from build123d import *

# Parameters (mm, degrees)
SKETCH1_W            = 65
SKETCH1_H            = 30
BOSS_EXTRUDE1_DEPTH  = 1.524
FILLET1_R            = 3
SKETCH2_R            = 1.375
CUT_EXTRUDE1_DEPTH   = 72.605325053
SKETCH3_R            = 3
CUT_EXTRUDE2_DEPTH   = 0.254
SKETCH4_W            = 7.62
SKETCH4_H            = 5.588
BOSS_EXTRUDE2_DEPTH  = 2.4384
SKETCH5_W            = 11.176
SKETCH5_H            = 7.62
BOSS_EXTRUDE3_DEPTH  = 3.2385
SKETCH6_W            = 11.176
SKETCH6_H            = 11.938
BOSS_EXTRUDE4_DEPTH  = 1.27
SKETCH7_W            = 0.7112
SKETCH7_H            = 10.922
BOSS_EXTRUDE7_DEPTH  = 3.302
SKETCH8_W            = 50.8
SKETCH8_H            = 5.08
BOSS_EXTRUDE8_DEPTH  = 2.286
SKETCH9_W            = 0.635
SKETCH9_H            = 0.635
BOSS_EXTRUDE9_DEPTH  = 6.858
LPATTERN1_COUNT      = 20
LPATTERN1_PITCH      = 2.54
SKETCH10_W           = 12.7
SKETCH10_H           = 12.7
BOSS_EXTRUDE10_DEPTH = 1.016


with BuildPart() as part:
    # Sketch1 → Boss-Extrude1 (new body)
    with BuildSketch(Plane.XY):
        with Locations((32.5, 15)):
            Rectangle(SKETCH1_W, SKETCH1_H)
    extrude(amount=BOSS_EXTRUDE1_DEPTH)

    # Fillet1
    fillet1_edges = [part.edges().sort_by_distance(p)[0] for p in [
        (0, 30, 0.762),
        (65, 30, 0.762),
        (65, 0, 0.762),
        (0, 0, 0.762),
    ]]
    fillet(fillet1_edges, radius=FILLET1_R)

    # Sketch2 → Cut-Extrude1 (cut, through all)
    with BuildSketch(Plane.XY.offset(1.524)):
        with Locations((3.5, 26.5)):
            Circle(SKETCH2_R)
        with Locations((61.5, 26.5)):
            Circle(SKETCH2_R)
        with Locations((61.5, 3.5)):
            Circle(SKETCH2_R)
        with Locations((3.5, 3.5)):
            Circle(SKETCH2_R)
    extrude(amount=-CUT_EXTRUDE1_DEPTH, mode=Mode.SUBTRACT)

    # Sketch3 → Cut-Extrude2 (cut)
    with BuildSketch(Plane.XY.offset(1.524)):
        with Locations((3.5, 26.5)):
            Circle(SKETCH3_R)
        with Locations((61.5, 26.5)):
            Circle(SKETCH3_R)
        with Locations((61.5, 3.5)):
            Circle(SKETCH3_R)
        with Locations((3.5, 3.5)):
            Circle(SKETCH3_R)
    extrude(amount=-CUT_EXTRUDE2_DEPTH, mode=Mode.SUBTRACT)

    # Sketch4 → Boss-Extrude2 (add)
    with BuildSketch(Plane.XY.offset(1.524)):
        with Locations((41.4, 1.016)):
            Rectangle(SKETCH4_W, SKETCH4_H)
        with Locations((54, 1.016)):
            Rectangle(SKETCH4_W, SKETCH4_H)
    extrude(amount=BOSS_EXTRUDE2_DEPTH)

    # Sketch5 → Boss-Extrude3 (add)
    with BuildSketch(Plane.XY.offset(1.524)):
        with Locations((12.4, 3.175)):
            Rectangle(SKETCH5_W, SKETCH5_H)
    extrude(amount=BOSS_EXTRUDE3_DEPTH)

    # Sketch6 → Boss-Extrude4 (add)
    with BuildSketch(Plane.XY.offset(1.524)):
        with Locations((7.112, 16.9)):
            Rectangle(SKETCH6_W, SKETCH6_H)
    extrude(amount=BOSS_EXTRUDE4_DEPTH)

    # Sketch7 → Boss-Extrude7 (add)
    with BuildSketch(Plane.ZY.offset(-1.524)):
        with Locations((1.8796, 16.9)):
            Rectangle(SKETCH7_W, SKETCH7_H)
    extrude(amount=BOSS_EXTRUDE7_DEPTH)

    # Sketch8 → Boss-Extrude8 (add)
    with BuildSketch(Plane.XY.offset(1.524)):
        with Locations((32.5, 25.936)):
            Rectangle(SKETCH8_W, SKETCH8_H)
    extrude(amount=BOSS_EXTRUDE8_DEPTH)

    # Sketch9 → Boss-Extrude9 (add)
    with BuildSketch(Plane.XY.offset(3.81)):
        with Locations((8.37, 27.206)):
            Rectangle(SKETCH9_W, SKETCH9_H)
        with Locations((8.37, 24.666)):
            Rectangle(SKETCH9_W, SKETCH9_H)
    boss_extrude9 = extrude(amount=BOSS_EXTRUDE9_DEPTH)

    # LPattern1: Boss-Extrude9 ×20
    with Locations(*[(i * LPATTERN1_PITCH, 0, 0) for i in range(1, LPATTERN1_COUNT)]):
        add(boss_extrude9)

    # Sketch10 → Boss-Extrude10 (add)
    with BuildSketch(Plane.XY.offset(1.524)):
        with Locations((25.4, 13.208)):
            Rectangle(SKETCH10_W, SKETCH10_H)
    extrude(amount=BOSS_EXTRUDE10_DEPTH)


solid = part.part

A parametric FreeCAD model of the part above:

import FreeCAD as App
import Part
import Sketcher

V = App.Vector
Q = App.Units.Quantity


def edges_at(feature, points):
    """Names of the edges that pass closest to the given points."""
    edges = feature.Shape.Edges
    near = lambda p: min(range(len(edges)), key=lambda i: edges[i].distToShape(Part.Vertex(*p))[0])
    return sorted({f"Edge{near(p) + 1}" for p in points})


def add_polygon(sketch, points):
    """Adds a closed chain of lines whose ends are joined by coincident constraints."""
    first, n = sketch.GeometryCount, len(points)
    for a, b in zip(points, points[1:] + points[:1]):
        sketch.addGeometry(Part.LineSegment(App.Vector(*a, 0), App.Vector(*b, 0)), False)
    for i in range(n):
        sketch.addConstraint(Sketcher.Constraint("Coincident", first + i, 2, first + (i + 1) % n, 1))

doc = App.newDocument("Part")
params = doc.addObject("Spreadsheet::Sheet", "Params")
for row, (alias, value) in enumerate([
    ("pad1_length", "0.06 in"),
    ("fillet_radius", "3 mm"),
    ("pocket2_length", "0.01 in"),
    ("sketch4_width", "0.3 in"),
    ("sketch4_height", "0.22 in"),
    ("pad2_length", "0.096 in"),
    ("sketch5_height", "0.3 in"),
    ("sketch5_width", "0.44 in"),
    ("pad3_length", "0.1275 in"),
    ("sketch6_width", "0.44 in"),
    ("sketch6_height", "0.47 in"),
    ("pad4_length", "0.05 in"),
    ("sketch7_width", "0.43 in"),
    ("sketch7_height", "0.028 in"),
    ("pad5_length", "0.13 in"),
    ("sketch8_width", "2 in"),
    ("sketch8_height", "0.2 in"),
    ("pad6_length", "0.09 in"),
    ("sketch9_width", "0.025 in"),
    ("pad7_length", "0.27 in"),
    ("linearpattern_pitch", "0.1 in"),
    ("sketch10_width", "0.5 in"),
    ("pad8_length", "0.04 in"),
], start=1):
    params.set(f"A{row}", alias)
    params.set(f"B{row}", "=" + value)
    params.setAlias(f"B{row}", alias)

body = doc.addObject("PartDesign::Body", "Body")

# Sketch on XY plane
sketch1 = body.newObject("Sketcher::SketchObject", "Sketch")
sketch1.AttachmentSupport = (doc.getObject("XY_Plane"), [""])
sketch1.MapMode = "FlatFace"
add_polygon(sketch1, [(0, 30), (0, 0), (65, 0), (65, 30)])  # lines 0-3
sketch1.addConstraint([
    Sketcher.Constraint("Vertical", 0),
    Sketcher.Constraint("Horizontal", 1),
    Sketcher.Constraint("Vertical", 2),
    Sketcher.Constraint("Horizontal", 3),
    Sketcher.Constraint("Coincident", 0, 2, -1, 1),
    Sketcher.Constraint("DistanceX", 1, 1, 1, 2, Q("65 mm")),
    Sketcher.Constraint("DistanceY", 0, 2, 0, 1, Q("30 mm")),
])
pad1 = body.newObject("PartDesign::Pad", "Pad")
pad1.Profile = sketch1
pad1.setExpression("Length", "Params.pad1_length")
doc.recompute()

fillet = body.newObject("PartDesign::Fillet", "Fillet")
fillet.Base = (pad1, edges_at(pad1, [
    (0, 30, 0.762),
    (65, 30, 0.762),
    (65, 0, 0.762),
    (0, 0, 0.762),
]))
fillet.setExpression("Radius", "Params.fillet_radius")

# Sketch on XY plane
sketch2 = body.newObject("Sketcher::SketchObject", "Sketch001")
sketch2.AttachmentSupport = (doc.getObject("XY_Plane"), [""])
sketch2.MapMode = "FlatFace"
sketch2.AttachmentOffset = App.Placement(V(0, 0, 0.06 * 25.4), App.Rotation())
sketch2.addGeometry([
    Part.Circle(V(3.5, 26.5, 0), V(0, 0, 1), 1.4),
    Part.Circle(V(61.5, 26.5, 0), V(0, 0, 1), 1.4),
    Part.Circle(V(61.5, 3.5, 0), V(0, 0, 1), 1.4),
    Part.Circle(V(3.5, 3.5, 0), V(0, 0, 1), 1.4),
], False)
sketch2.addConstraint([
    Sketcher.Constraint("Equal", 0, 1),
    Sketcher.Constraint("Equal", 1, 2),
    Sketcher.Constraint("Equal", 2, 3),
    Sketcher.Constraint("Horizontal", 0, 3, 1, 3),
    Sketcher.Constraint("Horizontal", 2, 3, 3, 3),
    Sketcher.Constraint("Vertical", 1, 3, 2, 3),
    Sketcher.Constraint("Vertical", 0, 3, 3, 3),
    Sketcher.Constraint("Diameter", 0, Q("2.75 mm")),
    Sketcher.Constraint("DistanceX", -1, 1, 0, 3, Q("3.5 mm")),
    Sketcher.Constraint("DistanceY", -1, 1, 0, 3, Q("26.5 mm")),
    Sketcher.Constraint("DistanceX", -1, 1, 1, 3, Q("61.5 mm")),
    Sketcher.Constraint("DistanceY", -1, 1, 2, 3, Q("3.5 mm")),
])
pocket1 = body.newObject("PartDesign::Pocket", "Pocket")
pocket1.Profile = sketch2
pocket1.Type = "ThroughAll"

# Sketch on XY plane
sketch3 = body.newObject("Sketcher::SketchObject", "Sketch002")
sketch3.AttachmentSupport = (doc.getObject("XY_Plane"), [""])
sketch3.MapMode = "FlatFace"
sketch3.AttachmentOffset = App.Placement(V(0, 0, 0.06 * 25.4), App.Rotation())
sketch3.addGeometry([
    Part.Circle(V(3.5, 26.5, 0), V(0, 0, 1), 3),
    Part.Circle(V(61.5, 26.5, 0), V(0, 0, 1), 3),
    Part.Circle(V(61.5, 3.5, 0), V(0, 0, 1), 3),
    Part.Circle(V(3.5, 3.5, 0), V(0, 0, 1), 3),
], False)
sketch3.addConstraint([
    Sketcher.Constraint("Equal", 0, 1),
    Sketcher.Constraint("Equal", 1, 2),
    Sketcher.Constraint("Equal", 2, 3),
    Sketcher.Constraint("Horizontal", 0, 3, 1, 3),
    Sketcher.Constraint("Horizontal", 2, 3, 3, 3),
    Sketcher.Constraint("Vertical", 1, 3, 2, 3),
    Sketcher.Constraint("Vertical", 0, 3, 3, 3),
    Sketcher.Constraint("Diameter", 0, Q("6 mm")),
    Sketcher.Constraint("DistanceX", -1, 1, 0, 3, Q("3.5 mm")),
    Sketcher.Constraint("DistanceY", -1, 1, 0, 3, Q("26.5 mm")),
    Sketcher.Constraint("DistanceX", -1, 1, 1, 3, Q("61.5 mm")),
    Sketcher.Constraint("DistanceY", -1, 1, 2, 3, Q("3.5 mm")),
])
pocket2 = body.newObject("PartDesign::Pocket", "Pocket001")
pocket2.Profile = sketch3
pocket2.setExpression("Length", "Params.pocket2_length")

# Sketch on XY plane
sketch4 = body.newObject("Sketcher::SketchObject", "Sketch003")
sketch4.AttachmentSupport = (doc.getObject("XY_Plane"), [""])
sketch4.MapMode = "FlatFace"
sketch4.AttachmentOffset = App.Placement(V(0, 0, 0.06 * 25.4), App.Rotation())
add_polygon(sketch4, [(38, 4), (38, -2), (45, -2), (45, 4)])  # lines 0-3
add_polygon(sketch4, [(50, 4), (50, -2), (58, -2), (58, 4)])  # lines 4-7
sketch4.addConstraint([
    Sketcher.Constraint("Vertical", 0),
    Sketcher.Constraint("Horizontal", 1),
    Sketcher.Constraint("Vertical", 2),
    Sketcher.Constraint("Horizontal", 3),
    Sketcher.Constraint("Vertical", 4),
    Sketcher.Constraint("Horizontal", 5),
    Sketcher.Constraint("Vertical", 6),
    Sketcher.Constraint("Horizontal", 7),
    Sketcher.Constraint("Horizontal", 1, 2, 4, 2),
    Sketcher.Constraint("Horizontal", 3, 2, 6, 2),
    Sketcher.Constraint("Equal", 3, 5),
    Sketcher.Constraint("DistanceX", 1, 1, 1, 2, Q("0.3 in")),
    Sketcher.Constraint("DistanceY", 0, 2, 0, 1, Q("0.22 in")),
    Sketcher.Constraint("DistanceY", 0, 2, -1, 1, Q("0.07 in")),
    Sketcher.Constraint("DistanceX", -1, 1, 0, 2, Q("37.59 mm")),
    Sketcher.Constraint("DistanceX", -1, 1, 4, 2, Q("50.19 mm")),
])
sketch4.setExpression("Constraints[19]", "Params.sketch4_width")
sketch4.setExpression("Constraints[20]", "Params.sketch4_height")
pad2 = body.newObject("PartDesign::Pad", "Pad001")
pad2.Profile = sketch4
pad2.setExpression("Length", "Params.pad2_length")

# Sketch on XY plane
sketch5 = body.newObject("Sketcher::SketchObject", "Sketch004")
sketch5.AttachmentSupport = (doc.getObject("XY_Plane"), [""])
sketch5.MapMode = "FlatFace"
sketch5.AttachmentOffset = App.Placement(V(0, 0, 0.06 * 25.4), App.Rotation())
add_polygon(sketch5, [(7, 7), (7, -1), (18, -1), (18, 7)])  # lines 0-3
sketch5.addConstraint([
    Sketcher.Constraint("Vertical", 0),
    Sketcher.Constraint("Horizontal", 1),
    Sketcher.Constraint("Vertical", 2),
    Sketcher.Constraint("Horizontal", 3),
    Sketcher.Constraint("DistanceY", 0, 2, 0, 1, Q("0.3 in")),
    Sketcher.Constraint("DistanceX", 1, 1, 1, 2, Q("0.44 in")),
    Sketcher.Constraint("DistanceY", 0, 2, -1, 1, Q("0.025 in")),
    Sketcher.Constraint("DistanceX", -1, 1, 0, 2, Q("6.812 mm")),
])
sketch5.setExpression("Constraints[8]", "Params.sketch5_height")
sketch5.setExpression("Constraints[9]", "Params.sketch5_width")
pad3 = body.newObject("PartDesign::Pad", "Pad002")
pad3.Profile = sketch5
pad3.setExpression("Length", "Params.pad3_length")

# Sketch on XY plane
sketch6 = body.newObject("Sketcher::SketchObject", "Sketch005")
sketch6.AttachmentSupport = (doc.getObject("XY_Plane"), [""])
sketch6.MapMode = "FlatFace"
sketch6.AttachmentOffset = App.Placement(V(0, 0, 0.06 * 25.4), App.Rotation())
add_polygon(sketch6, [(2, 23), (2, 11), (13, 11), (13, 23)])  # lines 0-3
sketch6.addConstraint([
    Sketcher.Constraint("Vertical", 0),
    Sketcher.Constraint("Horizontal", 1),
    Sketcher.Constraint("Vertical", 2),
    Sketcher.Constraint("Horizontal", 3),
    Sketcher.Constraint("DistanceX", 1, 1, 1, 2, Q("0.44 in")),
    Sketcher.Constraint("DistanceY", 0, 2, 0, 1, Q("0.47 in")),
    Sketcher.Constraint("DistanceX", -1, 1, 1, 2, Q("0.5 in")),
    Sketcher.Constraint("DistanceY", -1, 1, 0, 2, Q("10.931 mm")),
])
sketch6.setExpression("Constraints[8]", "Params.sketch6_width")
sketch6.setExpression("Constraints[9]", "Params.sketch6_height")
pad4 = body.newObject("PartDesign::Pad", "Pad003")
pad4.Profile = sketch6
pad4.setExpression("Length", "Params.pad4_length")

# Sketch on YZ plane
sketch7 = body.newObject("Sketcher::SketchObject", "Sketch006")
sketch7.AttachmentSupport = (doc.getObject("YZ_Plane"), [""])
sketch7.MapMode = "FlatFace"
sketch7.AttachmentOffset = App.Placement(V(0, 0, 0.06 * 25.4), App.Rotation())
add_polygon(sketch7, [(22.4, 1.5), (11.4, 1.5), (11.4, 2.2), (22.4, 2.2)])  # lines 0-3
sketch7.addConstraint([
    Sketcher.Constraint("Horizontal", 0),
    Sketcher.Constraint("Vertical", 1),
    Sketcher.Constraint("Horizontal", 2),
    Sketcher.Constraint("Vertical", 3),
    Sketcher.Constraint("DistanceX", 0, 2, 0, 1, Q("0.43 in")),
    Sketcher.Constraint("DistanceY", 1, 1, 1, 2, Q("0.028 in")),
    Sketcher.Constraint("DistanceY", -1, 1, 0, 2, Q("0.06 in")),
    Sketcher.Constraint("DistanceX", -1, 1, 0, 2, Q("11.439 mm")),
])
sketch7.setExpression("Constraints[8]", "Params.sketch7_width")
sketch7.setExpression("Constraints[9]", "Params.sketch7_height")
pad5 = body.newObject("PartDesign::Pad", "Pad004")
pad5.Profile = sketch7
pad5.setExpression("Length", "Params.pad5_length")
pad5.Reversed = True

# Sketch on XY plane
sketch8 = body.newObject("Sketcher::SketchObject", "Sketch007")
sketch8.AttachmentSupport = (doc.getObject("XY_Plane"), [""])
sketch8.MapMode = "FlatFace"
sketch8.AttachmentOffset = App.Placement(V(0, 0, 0.06 * 25.4), App.Rotation())
add_polygon(sketch8, [(7, 28), (7, 23), (58, 23), (58, 28)])  # lines 0-3
sketch8.addConstraint([
    Sketcher.Constraint("Vertical", 0),
    Sketcher.Constraint("Horizontal", 1),
    Sketcher.Constraint("Vertical", 2),
    Sketcher.Constraint("Horizontal", 3),
    Sketcher.Constraint("DistanceX", 1, 1, 1, 2, Q("2 in")),
    Sketcher.Constraint("DistanceY", 0, 2, 0, 1, Q("0.2 in")),
    Sketcher.Constraint("DistanceX", -1, 1, 0, 2, Q("7.1 mm")),
    Sketcher.Constraint("DistanceY", -1, 1, 0, 2, Q("23.396 mm")),
])
sketch8.setExpression("Constraints[8]", "Params.sketch8_width")
sketch8.setExpression("Constraints[9]", "Params.sketch8_height")
pad6 = body.newObject("PartDesign::Pad", "Pad005")
pad6.Profile = sketch8
pad6.setExpression("Length", "Params.pad6_length")

# Sketch on XY plane
sketch9 = body.newObject("Sketcher::SketchObject", "Sketch008")
sketch9.AttachmentSupport = (doc.getObject("XY_Plane"), [""])
sketch9.MapMode = "FlatFace"
sketch9.AttachmentOffset = App.Placement(V(0, 0, 0.15 * 25.4), App.Rotation())
add_polygon(sketch9, [(8.1, 27.5), (8.1, 26.9), (8.7, 26.9), (8.7, 27.5)])  # lines 0-3
add_polygon(sketch9, [(8.1, 25), (8.1, 24.3), (8.7, 24.3), (8.7, 25)])  # lines 4-7
sketch9.addConstraint([
    Sketcher.Constraint("Vertical", 0),
    Sketcher.Constraint("Horizontal", 1),
    Sketcher.Constraint("Vertical", 2),
    Sketcher.Constraint("Horizontal", 3),
    Sketcher.Constraint("Vertical", 4),
    Sketcher.Constraint("Horizontal", 5),
    Sketcher.Constraint("Vertical", 6),
    Sketcher.Constraint("Horizontal", 7),
    Sketcher.Constraint("Vertical", 3, 2, 4, 2),
    Sketcher.Constraint("Vertical", 2, 2, 5, 2),
    Sketcher.Constraint("Equal", 7, 0),
    Sketcher.Constraint("Equal", 2, 4),
    Sketcher.Constraint("DistanceY", 4, 2, 0, 2, Q("0.1 in")),
    Sketcher.Constraint("DistanceX", 1, 1, 1, 2, Q("0.025 in")),
    Sketcher.Constraint("DistanceX", -1, 1, 0, 2, Q("8.0525 mm")),
    Sketcher.Constraint("DistanceY", -1, 1, 0, 2, Q("26.8885 mm")),
])
sketch9.setExpression("Constraints[21]", "Params.sketch9_width")
pad7 = body.newObject("PartDesign::Pad", "Pad006")
pad7.Profile = sketch9
pad7.setExpression("Length", "Params.pad7_length")
doc.recompute()

linearpattern = body.newObject("PartDesign::LinearPattern", "LinearPattern")
linearpattern.Originals = [pad7]
linearpattern.Direction = (doc.getObject("X_Axis"), [""])
linearpattern.Mode = "offset"
linearpattern.setExpression("Offset", "Params.linearpattern_pitch")
linearpattern.Occurrences = 20
body.Tip = linearpattern

# Sketch on XY plane
sketch10 = body.newObject("Sketcher::SketchObject", "Sketch009")
sketch10.AttachmentSupport = (doc.getObject("XY_Plane"), [""])
sketch10.MapMode = "FlatFace"
sketch10.AttachmentOffset = App.Placement(V(0, 0, 0.06 * 25.4), App.Rotation())
add_polygon(sketch10, [(19, 20), (19, 7), (32, 7), (32, 20)])  # lines 0-3
sketch10.addConstraint([
    Sketcher.Constraint("Vertical", 0),
    Sketcher.Constraint("Horizontal", 1),
    Sketcher.Constraint("Vertical", 2),
    Sketcher.Constraint("Horizontal", 3),
    Sketcher.Constraint("Equal", 3, 0),
    Sketcher.Constraint("DistanceX", 1, 1, 1, 2, Q("0.5 in")),
    Sketcher.Constraint("DistanceX", -1, 1, 0, 2, Q("0.75 in")),
    Sketcher.Constraint("DistanceY", -1, 1, 0, 2, Q("0.27 in")),
])
sketch10.setExpression("Constraints[9]", "Params.sketch10_width")
pad8 = body.newObject("PartDesign::Pad", "Pad007")
pad8.Profile = sketch10
pad8.setExpression("Length", "Params.pad8_length")

doc.recompute()
